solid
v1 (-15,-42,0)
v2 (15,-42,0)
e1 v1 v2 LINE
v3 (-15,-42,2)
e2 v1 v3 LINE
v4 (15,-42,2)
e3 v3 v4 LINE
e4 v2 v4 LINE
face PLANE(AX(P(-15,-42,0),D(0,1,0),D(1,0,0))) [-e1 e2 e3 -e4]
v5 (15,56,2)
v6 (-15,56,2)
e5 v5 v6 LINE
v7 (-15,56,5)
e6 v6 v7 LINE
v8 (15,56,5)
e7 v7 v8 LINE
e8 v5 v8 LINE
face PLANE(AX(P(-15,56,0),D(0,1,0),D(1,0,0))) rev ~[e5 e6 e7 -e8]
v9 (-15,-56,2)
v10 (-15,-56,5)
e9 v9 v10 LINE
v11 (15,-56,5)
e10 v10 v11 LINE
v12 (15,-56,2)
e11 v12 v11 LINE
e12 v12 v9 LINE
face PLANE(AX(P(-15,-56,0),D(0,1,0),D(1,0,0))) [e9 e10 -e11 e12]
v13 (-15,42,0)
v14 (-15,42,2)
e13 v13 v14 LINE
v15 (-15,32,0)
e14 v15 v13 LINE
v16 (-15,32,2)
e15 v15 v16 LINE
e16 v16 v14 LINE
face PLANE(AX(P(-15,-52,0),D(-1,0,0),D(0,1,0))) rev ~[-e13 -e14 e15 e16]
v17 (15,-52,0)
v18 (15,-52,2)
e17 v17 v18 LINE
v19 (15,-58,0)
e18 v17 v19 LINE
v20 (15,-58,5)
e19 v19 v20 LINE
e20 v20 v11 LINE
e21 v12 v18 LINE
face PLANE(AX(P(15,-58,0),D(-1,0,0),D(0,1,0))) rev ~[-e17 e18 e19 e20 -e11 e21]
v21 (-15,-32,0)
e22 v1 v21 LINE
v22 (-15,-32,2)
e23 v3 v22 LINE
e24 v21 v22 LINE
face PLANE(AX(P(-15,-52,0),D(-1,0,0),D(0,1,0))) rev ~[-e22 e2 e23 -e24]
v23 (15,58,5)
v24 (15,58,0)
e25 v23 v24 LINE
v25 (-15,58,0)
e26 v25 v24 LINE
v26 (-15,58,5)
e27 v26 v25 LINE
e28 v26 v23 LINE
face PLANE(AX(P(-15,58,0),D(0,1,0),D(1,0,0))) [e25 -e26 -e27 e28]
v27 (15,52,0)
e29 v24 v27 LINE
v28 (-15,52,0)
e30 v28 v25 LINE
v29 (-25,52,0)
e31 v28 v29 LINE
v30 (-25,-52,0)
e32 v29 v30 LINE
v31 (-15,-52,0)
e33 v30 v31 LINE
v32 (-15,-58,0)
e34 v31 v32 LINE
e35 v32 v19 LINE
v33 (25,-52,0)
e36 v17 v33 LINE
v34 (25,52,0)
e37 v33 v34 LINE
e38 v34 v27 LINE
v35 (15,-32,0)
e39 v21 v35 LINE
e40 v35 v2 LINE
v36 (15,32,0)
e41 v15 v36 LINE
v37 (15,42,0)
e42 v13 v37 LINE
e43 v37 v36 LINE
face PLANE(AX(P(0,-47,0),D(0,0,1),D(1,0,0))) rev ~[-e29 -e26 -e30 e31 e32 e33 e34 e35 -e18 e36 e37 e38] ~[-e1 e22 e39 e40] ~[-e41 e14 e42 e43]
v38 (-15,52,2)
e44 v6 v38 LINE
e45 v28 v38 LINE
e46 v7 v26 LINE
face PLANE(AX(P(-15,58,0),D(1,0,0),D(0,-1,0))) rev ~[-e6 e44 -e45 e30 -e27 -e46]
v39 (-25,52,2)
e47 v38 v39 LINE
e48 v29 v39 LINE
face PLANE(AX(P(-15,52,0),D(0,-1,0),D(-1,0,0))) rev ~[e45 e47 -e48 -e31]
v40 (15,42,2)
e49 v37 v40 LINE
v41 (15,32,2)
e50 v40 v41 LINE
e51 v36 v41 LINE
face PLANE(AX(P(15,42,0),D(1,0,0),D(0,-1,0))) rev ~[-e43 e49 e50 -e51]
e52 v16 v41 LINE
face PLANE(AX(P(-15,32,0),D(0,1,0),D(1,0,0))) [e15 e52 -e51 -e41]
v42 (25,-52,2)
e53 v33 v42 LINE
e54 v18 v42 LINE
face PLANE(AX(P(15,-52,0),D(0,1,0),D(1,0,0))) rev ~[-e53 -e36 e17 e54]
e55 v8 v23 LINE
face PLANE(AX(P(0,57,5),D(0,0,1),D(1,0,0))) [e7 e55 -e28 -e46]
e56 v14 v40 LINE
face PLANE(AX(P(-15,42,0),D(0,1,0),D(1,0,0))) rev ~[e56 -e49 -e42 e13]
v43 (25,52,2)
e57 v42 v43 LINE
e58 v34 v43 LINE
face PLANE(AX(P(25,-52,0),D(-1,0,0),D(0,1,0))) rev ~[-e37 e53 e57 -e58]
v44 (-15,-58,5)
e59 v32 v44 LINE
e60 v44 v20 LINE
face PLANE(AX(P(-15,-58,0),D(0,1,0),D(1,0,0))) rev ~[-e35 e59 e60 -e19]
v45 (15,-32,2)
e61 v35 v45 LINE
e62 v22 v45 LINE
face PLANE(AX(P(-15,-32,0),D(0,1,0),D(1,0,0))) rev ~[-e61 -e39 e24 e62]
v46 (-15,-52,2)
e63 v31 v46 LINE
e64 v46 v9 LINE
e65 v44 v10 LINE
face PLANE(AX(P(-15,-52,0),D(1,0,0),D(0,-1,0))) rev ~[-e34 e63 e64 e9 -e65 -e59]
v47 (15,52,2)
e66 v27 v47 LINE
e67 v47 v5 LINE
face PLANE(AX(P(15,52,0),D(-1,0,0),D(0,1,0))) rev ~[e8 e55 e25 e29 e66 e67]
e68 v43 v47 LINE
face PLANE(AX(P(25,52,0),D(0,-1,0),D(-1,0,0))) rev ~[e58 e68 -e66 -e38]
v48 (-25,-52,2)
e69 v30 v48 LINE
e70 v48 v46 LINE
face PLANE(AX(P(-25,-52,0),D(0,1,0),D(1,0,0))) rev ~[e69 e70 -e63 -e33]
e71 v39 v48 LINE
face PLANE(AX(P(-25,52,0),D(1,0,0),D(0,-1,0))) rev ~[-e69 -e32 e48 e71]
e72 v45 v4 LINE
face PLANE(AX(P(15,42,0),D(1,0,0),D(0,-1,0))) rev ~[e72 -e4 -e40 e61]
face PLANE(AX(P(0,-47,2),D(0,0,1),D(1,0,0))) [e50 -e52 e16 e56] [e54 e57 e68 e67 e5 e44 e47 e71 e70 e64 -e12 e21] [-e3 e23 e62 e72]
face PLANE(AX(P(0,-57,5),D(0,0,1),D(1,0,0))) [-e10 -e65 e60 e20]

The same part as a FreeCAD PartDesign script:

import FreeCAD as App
import Part
import Sketcher
from FreeCAD import Vector
Q = App.Units.Quantity

doc = App.newDocument("Part")
body = doc.addObject("PartDesign::Body", "Body")

# Sketch on XY plane
sketch1 = body.newObject("Sketcher::SketchObject", "Sketch")
sketch1.AttachmentSupport = (doc.getObject("XY_Plane"), [""])
sketch1.MapMode = "FlatFace"
sketch1.addGeometry(Part.LineSegment(Vector(-15, 42, 0), Vector(15, 42, 0)), False)
sketch1.addGeometry(Part.LineSegment(Vector(15, 42, 0), Vector(15, -52, 0)), False)
sketch1.addGeometry(Part.LineSegment(Vector(15, -52, 0), Vector(25, -52, 0)), False)
sketch1.addGeometry(Part.LineSegment(Vector(25, -52, 0), Vector(25, 52, 0)), False)
sketch1.addGeometry(Part.LineSegment(Vector(25, 52, 0), Vector(15, 52, 0)), False)
sketch1.addGeometry(Part.LineSegment(Vector(15, 52, 0), Vector(15, 58, 0)), False)
sketch1.addGeometry(Part.LineSegment(Vector(15, 58, 0), Vector(-15, 58, 0)), False)
sketch1.addGeometry(Part.LineSegment(Vector(-15, 58, 0), Vector(-15, 52, 0)), False)
sketch1.addGeometry(Part.LineSegment(Vector(-15, 52, 0), Vector(-25, 52, 0)), False)
sketch1.addGeometry(Part.LineSegment(Vector(-25, 52, 0), Vector(-25, -52, 0)), False)
sketch1.addGeometry(Part.LineSegment(Vector(-25, -52, 0), Vector(-15, -52, 0)), False)
sketch1.addGeometry(Part.LineSegment(Vector(-15, -52, 0), Vector(-15, 42, 0)), False)
sketch1.addConstraint(Sketcher.Constraint("Coincident", 0, 2, 1, 1))
sketch1.addConstraint(Sketcher.Constraint("Coincident", 1, 2, 2, 1))
sketch1.addConstraint(Sketcher.Constraint("Coincident", 2, 2, 3, 1))
sketch1.addConstraint(Sketcher.Constraint("Coincident", 3, 2, 4, 1))
sketch1.addConstraint(Sketcher.Constraint("Coincident", 4, 2, 5, 1))
sketch1.addConstraint(Sketcher.Constraint("Coincident", 5, 2, 6, 1))
sketch1.addConstraint(Sketcher.Constraint("Coincident", 6, 2, 7, 1))
sketch1.addConstraint(Sketcher.Constraint("Coincident", 7, 2, 8, 1))
sketch1.addConstraint(Sketcher.Constraint("Coincident", 8, 2, 9, 1))
sketch1.addConstraint(Sketcher.Constraint("Coincident", 9, 2, 10, 1))
sketch1.addConstraint(Sketcher.Constraint("Coincident", 10, 2, 11, 1))
sketch1.addConstraint(Sketcher.Constraint("Coincident", 11, 2, 0, 1))
sketch1.addConstraint(Sketcher.Constraint("Horizontal", 0))
sketch1.addConstraint(Sketcher.Constraint("Vertical", 1))
sketch1.addConstraint(Sketcher.Constraint("Horizontal", 2))
sketch1.addConstraint(Sketcher.Constraint("Vertical", 3))
sketch1.addConstraint(Sketcher.Constraint("Horizontal", 4))
sketch1.addConstraint(Sketcher.Constraint("Vertical", 5))
sketch1.addConstraint(Sketcher.Constraint("Horizontal", 6))
sketch1.addConstraint(Sketcher.Constraint("Vertical", 7))
sketch1.addConstraint(Sketcher.Constraint("Horizontal", 8))
sketch1.addConstraint(Sketcher.Constraint("Vertical", 9))
sketch1.addConstraint(Sketcher.Constraint("Horizontal", 10))
sketch1.addConstraint(Sketcher.Constraint("Vertical", 11))
sketch1.addConstraint(Sketcher.Constraint("Symmetric", 1, 2, 7, 2, -1, 1))
sketch1.addConstraint(Sketcher.Constraint("Symmetric", 3, 2, 9, 2, -1, 1))
sketch1.addConstraint(Sketcher.Constraint("Symmetric", 4, 2, 7, 2, -2))
sketch1.addConstraint(Sketcher.Constraint("Vertical", 7, 2, 10, 2))
sketch1.addConstraint(Sketcher.Constraint("DistanceX", 0, 1, 0, 2, Q("30 mm")))
sketch1.addConstraint(Sketcher.Constraint("DistanceX", 2, 1, 2, 2, Q("10 mm")))
sketch1.addConstraint(Sketcher.Constraint("DistanceY", 1, 2, 1, 1, Q("94 mm")))
sketch1.addConstraint(Sketcher.Constraint("DistanceY", 3, 1, 3, 2, Q("104 mm")))
sketch1.addConstraint(Sketcher.Constraint("DistanceY", 5, 1, 5, 2, Q("6 mm")))
pad1 = body.newObject("PartDesign::Pad", "Pad")
pad1.Profile = sketch1
pad1.Length = 2

# Sketch on XY plane
sketch2 = body.newObject("Sketcher::SketchObject", "Sketch001")
sketch2.AttachmentSupport = (doc.getObject("XY_Plane"), [""])
sketch2.MapMode = "FlatFace"
sketch2.addGeometry(Part.LineSegment(Vector(-15, 58, 0), Vector(-15, 56, 0)), False)
sketch2.addGeometry(Part.LineSegment(Vector(-15, 56, 0), Vector(15, 56, 0)), False)
sketch2.addGeometry(Part.LineSegment(Vector(15, 56, 0), Vector(15, 58, 0)), False)
sketch2.addGeometry(Part.LineSegment(Vector(15, 58, 0), Vector(-15, 58, 0)), False)
sketch2.addConstraint(Sketcher.Constraint("Coincident", 0, 2, 1, 1))
sketch2.addConstraint(Sketcher.Constraint("Coincident", 1, 2, 2, 1))
sketch2.addConstraint(Sketcher.Constraint("Coincident", 2, 2, 3, 1))
sketch2.addConstraint(Sketcher.Constraint("Coincident", 3, 2, 0, 1))
sketch2.addConstraint(Sketcher.Constraint("Vertical", 0))
sketch2.addConstraint(Sketcher.Constraint("Horizontal", 1))
sketch2.addConstraint(Sketcher.Constraint("Vertical", 2))
sketch2.addConstraint(Sketcher.Constraint("Horizontal", 3))
sketch2.addConstraint(Sketcher.Constraint("DistanceX", 1, 1, 1, 2, Q("30 mm")))
sketch2.addConstraint(Sketcher.Constraint("DistanceY", 0, 2, 0, 1, Q("2 mm")))
sketch2.addConstraint(Sketcher.Constraint("DistanceX", 0, 2, -1, 1, Q("15 mm")))
sketch2.addConstraint(Sketcher.Constraint("DistanceY", -1, 1, 0, 2, Q("56 mm")))
pad2 = body.newObject("PartDesign::Pad", "Pad001")
pad2.Profile = sketch2
pad2.Length = 5
body2 = doc.addObject("PartDesign::Body", "Body001")

# Sketch on XY plane
sketch3 = body2.newObject("Sketcher::SketchObject", "Sketch002")
sketch3.AttachmentSupport = (doc.getObject("XY_Plane001"), [""])
sketch3.MapMode = "FlatFace"
sketch3.addGeometry(Part.LineSegment(Vector(15, -52, 0), Vector(-15, -52, 0)), False)
sketch3.addGeometry(Part.LineSegment(Vector(-15, -52, 0), Vector(-15, -58, 0)), False)
sketch3.addGeometry(Part.LineSegment(Vector(-15, -58, 0), Vector(15, -58, 0)), False)
sketch3.addGeometry(Part.LineSegment(Vector(15, -58, 0), Vector(15, -52, 0)), False)
sketch3.addConstraint(Sketcher.Constraint("Coincident", 0, 2, 1, 1))
sketch3.addConstraint(Sketcher.Constraint("Coincident", 1, 2, 2, 1))
sketch3.addConstraint(Sketcher.Constraint("Coincident", 2, 2, 3, 1))
sketch3.addConstraint(Sketcher.Constraint("Coincident", 3, 2, 0, 1))
sketch3.addConstraint(Sketcher.Constraint("Horizontal", 0))
sketch3.addConstraint(Sketcher.Constraint("Vertical", 1))
sketch3.addConstraint(Sketcher.Constraint("Horizontal", 2))
sketch3.addConstraint(Sketcher.Constraint("Vertical", 3))
sketch3.addConstraint(Sketcher.Constraint("DistanceX", 0, 2, 0, 1, Q("30 mm")))
sketch3.addConstraint(Sketcher.Constraint("DistanceY", 1, 2, 1, 1, Q("6 mm")))
sketch3.addConstraint(Sketcher.Constraint("DistanceX", 0, 2, -1, 1, Q("15 mm")))
sketch3.addConstraint(Sketcher.Constraint("DistanceY", 0, 2, -1, 1, Q("52 mm")))
pad3 = body2.newObject("PartDesign::Pad", "Pad002")
pad3.Profile = sketch3
pad3.Length = 2

# Sketch on XY plane
sketch4 = body2.newObject("Sketcher::SketchObject", "Sketch003")
sketch4.AttachmentSupport = (doc.getObject("XY_Plane001"), [""])
sketch4.MapMode = "FlatFace"
sketch4.addGeometry(Part.LineSegment(Vector(-15, -56, 0), Vector(-15, -58, 0)), False)
sketch4.addGeometry(Part.LineSegment(Vector(-15, -58, 0), Vector(15, -58, 0)), False)
sketch4.addGeometry(Part.LineSegment(Vector(15, -58, 0), Vector(15, -56, 0)), False)
sketch4.addGeometry(Part.LineSegment(Vector(15, -56, 0), Vector(-15, -56, 0)), False)
sketch4.addConstraint(Sketcher.Constraint("Coincident", 0, 2, 1, 1))
sketch4.addConstraint(Sketcher.Constraint("Coincident", 1, 2, 2, 1))
sketch4.addConstraint(Sketcher.Constraint("Coincident", 2, 2, 3, 1))
sketch4.addConstraint(Sketcher.Constraint("Coincident", 3, 2, 0, 1))
sketch4.addConstraint(Sketcher.Constraint("Vertical", 0))
sketch4.addConstraint(Sketcher.Constraint("Horizontal", 1))
sketch4.addConstraint(Sketcher.Constraint("Vertical", 2))
sketch4.addConstraint(Sketcher.Constraint("Horizontal", 3))
sketch4.addConstraint(Sketcher.Constraint("DistanceX", 1, 1, 1, 2, Q("30 mm")))
sketch4.addConstraint(Sketcher.Constraint("DistanceY", 0, 2, 0, 1, Q("2 mm")))
sketch4.addConstraint(Sketcher.Constraint("DistanceX", 0, 2, -1, 1, Q("15 mm")))
sketch4.addConstraint(Sketcher.Constraint("DistanceY", 0, 2, -1, 1, Q("58 mm")))
pad4 = body2.newObject("PartDesign::Pad", "Pad003")
pad4.Profile = sketch4
pad4.Length = 5
body.AllowCompound = True
doc.recompute()

boolean = body.newObject("PartDesign::Boolean", "Boolean")
boolean.Type = "Fuse"
boolean.addObjects([body2])

# Sketch on XY plane
sketch5 = body.newObject("Sketcher::SketchObject", "Sketch004")
sketch5.AttachmentSupport = (doc.getObject("XY_Plane"), [""])
sketch5.MapMode = "FlatFace"
sketch5.addGeometry(Part.LineSegment(Vector(-15, 32, 0), Vector(-15, -32, 0)), False)
sketch5.addGeometry(Part.LineSegment(Vector(-15, -32, 0), Vector(15, -32, 0)), False)
sketch5.addGeometry(Part.LineSegment(Vector(15, -32, 0), Vector(15, 32, 0)), False)
sketch5.addGeometry(Part.LineSegment(Vector(15, 32, 0), Vector(-15, 32, 0)), False)
sketch5.addGeometry(Part.LineSegment(Vector(-15, -42, 0), Vector(-15, -52, 0)), False)
sketch5.addGeometry(Part.LineSegment(Vector(-15, -52, 0), Vector(15, -52, 0)), False)
sketch5.addGeometry(Part.LineSegment(Vector(15, -52, 0), Vector(15, -42, 0)), False)
sketch5.addGeometry(Part.LineSegment(Vector(15, -42, 0), Vector(-15, -42, 0)), False)
sketch5.addConstraint(Sketcher.Constraint("Coincident", 0, 2, 1, 1))
sketch5.addConstraint(Sketcher.Constraint("Coincident", 1, 2, 2, 1))
sketch5.addConstraint(Sketcher.Constraint("Coincident", 2, 2, 3, 1))
sketch5.addConstraint(Sketcher.Constraint("Coincident", 3, 2, 0, 1))
sketch5.addConstraint(Sketcher.Constraint("Coincident", 4, 2, 5, 1))
sketch5.addConstraint(Sketcher.Constraint("Coincident", 5, 2, 6, 1))
sketch5.addConstraint(Sketcher.Constraint("Coincident", 6, 2, 7, 1))
sketch5.addConstraint(Sketcher.Constraint("Coincident", 7, 2, 4, 1))
sketch5.addConstraint(Sketcher.Constraint("Vertical", 0))
sketch5.addConstraint(Sketcher.Constraint("Horizontal", 1))
sketch5.addConstraint(Sketcher.Constraint("Vertical", 2))
sketch5.addConstraint(Sketcher.Constraint("Horizontal", 3))
sketch5.addConstraint(Sketcher.Constraint("Vertical", 4))
sketch5.addConstraint(Sketcher.Constraint("Horizontal", 5))
sketch5.addConstraint(Sketcher.Constraint("Vertical", 6))
sketch5.addConstraint(Sketcher.Constraint("Horizontal", 7))
sketch5.addConstraint(Sketcher.Constraint("Symmetric", 0, 2, 2, 2, -1, 1))
sketch5.addConstraint(Sketcher.Constraint("Vertical", 3, 2, 4, 2))
sketch5.addConstraint(Sketcher.Constraint("Vertical", 2, 2, 5, 2))
sketch5.addConstraint(Sketcher.Constraint("DistanceX", 1, 1, 1, 2, Q("30 mm")))
sketch5.addConstraint(Sketcher.Constraint("DistanceY", 0, 2, 0, 1, Q("64 mm")))
sketch5.addConstraint(Sketcher.Constraint("DistanceY", 4, 2, 4, 1, Q("10 mm")))
sketch5.addConstraint(Sketcher.Constraint("DistanceY", 4, 2, -1, 1, Q("52 mm")))
pad5 = body.newObject("PartDesign::Pad", "Pad004")
pad5.Profile = sketch5
pad5.Length = 2

doc.recompute()
